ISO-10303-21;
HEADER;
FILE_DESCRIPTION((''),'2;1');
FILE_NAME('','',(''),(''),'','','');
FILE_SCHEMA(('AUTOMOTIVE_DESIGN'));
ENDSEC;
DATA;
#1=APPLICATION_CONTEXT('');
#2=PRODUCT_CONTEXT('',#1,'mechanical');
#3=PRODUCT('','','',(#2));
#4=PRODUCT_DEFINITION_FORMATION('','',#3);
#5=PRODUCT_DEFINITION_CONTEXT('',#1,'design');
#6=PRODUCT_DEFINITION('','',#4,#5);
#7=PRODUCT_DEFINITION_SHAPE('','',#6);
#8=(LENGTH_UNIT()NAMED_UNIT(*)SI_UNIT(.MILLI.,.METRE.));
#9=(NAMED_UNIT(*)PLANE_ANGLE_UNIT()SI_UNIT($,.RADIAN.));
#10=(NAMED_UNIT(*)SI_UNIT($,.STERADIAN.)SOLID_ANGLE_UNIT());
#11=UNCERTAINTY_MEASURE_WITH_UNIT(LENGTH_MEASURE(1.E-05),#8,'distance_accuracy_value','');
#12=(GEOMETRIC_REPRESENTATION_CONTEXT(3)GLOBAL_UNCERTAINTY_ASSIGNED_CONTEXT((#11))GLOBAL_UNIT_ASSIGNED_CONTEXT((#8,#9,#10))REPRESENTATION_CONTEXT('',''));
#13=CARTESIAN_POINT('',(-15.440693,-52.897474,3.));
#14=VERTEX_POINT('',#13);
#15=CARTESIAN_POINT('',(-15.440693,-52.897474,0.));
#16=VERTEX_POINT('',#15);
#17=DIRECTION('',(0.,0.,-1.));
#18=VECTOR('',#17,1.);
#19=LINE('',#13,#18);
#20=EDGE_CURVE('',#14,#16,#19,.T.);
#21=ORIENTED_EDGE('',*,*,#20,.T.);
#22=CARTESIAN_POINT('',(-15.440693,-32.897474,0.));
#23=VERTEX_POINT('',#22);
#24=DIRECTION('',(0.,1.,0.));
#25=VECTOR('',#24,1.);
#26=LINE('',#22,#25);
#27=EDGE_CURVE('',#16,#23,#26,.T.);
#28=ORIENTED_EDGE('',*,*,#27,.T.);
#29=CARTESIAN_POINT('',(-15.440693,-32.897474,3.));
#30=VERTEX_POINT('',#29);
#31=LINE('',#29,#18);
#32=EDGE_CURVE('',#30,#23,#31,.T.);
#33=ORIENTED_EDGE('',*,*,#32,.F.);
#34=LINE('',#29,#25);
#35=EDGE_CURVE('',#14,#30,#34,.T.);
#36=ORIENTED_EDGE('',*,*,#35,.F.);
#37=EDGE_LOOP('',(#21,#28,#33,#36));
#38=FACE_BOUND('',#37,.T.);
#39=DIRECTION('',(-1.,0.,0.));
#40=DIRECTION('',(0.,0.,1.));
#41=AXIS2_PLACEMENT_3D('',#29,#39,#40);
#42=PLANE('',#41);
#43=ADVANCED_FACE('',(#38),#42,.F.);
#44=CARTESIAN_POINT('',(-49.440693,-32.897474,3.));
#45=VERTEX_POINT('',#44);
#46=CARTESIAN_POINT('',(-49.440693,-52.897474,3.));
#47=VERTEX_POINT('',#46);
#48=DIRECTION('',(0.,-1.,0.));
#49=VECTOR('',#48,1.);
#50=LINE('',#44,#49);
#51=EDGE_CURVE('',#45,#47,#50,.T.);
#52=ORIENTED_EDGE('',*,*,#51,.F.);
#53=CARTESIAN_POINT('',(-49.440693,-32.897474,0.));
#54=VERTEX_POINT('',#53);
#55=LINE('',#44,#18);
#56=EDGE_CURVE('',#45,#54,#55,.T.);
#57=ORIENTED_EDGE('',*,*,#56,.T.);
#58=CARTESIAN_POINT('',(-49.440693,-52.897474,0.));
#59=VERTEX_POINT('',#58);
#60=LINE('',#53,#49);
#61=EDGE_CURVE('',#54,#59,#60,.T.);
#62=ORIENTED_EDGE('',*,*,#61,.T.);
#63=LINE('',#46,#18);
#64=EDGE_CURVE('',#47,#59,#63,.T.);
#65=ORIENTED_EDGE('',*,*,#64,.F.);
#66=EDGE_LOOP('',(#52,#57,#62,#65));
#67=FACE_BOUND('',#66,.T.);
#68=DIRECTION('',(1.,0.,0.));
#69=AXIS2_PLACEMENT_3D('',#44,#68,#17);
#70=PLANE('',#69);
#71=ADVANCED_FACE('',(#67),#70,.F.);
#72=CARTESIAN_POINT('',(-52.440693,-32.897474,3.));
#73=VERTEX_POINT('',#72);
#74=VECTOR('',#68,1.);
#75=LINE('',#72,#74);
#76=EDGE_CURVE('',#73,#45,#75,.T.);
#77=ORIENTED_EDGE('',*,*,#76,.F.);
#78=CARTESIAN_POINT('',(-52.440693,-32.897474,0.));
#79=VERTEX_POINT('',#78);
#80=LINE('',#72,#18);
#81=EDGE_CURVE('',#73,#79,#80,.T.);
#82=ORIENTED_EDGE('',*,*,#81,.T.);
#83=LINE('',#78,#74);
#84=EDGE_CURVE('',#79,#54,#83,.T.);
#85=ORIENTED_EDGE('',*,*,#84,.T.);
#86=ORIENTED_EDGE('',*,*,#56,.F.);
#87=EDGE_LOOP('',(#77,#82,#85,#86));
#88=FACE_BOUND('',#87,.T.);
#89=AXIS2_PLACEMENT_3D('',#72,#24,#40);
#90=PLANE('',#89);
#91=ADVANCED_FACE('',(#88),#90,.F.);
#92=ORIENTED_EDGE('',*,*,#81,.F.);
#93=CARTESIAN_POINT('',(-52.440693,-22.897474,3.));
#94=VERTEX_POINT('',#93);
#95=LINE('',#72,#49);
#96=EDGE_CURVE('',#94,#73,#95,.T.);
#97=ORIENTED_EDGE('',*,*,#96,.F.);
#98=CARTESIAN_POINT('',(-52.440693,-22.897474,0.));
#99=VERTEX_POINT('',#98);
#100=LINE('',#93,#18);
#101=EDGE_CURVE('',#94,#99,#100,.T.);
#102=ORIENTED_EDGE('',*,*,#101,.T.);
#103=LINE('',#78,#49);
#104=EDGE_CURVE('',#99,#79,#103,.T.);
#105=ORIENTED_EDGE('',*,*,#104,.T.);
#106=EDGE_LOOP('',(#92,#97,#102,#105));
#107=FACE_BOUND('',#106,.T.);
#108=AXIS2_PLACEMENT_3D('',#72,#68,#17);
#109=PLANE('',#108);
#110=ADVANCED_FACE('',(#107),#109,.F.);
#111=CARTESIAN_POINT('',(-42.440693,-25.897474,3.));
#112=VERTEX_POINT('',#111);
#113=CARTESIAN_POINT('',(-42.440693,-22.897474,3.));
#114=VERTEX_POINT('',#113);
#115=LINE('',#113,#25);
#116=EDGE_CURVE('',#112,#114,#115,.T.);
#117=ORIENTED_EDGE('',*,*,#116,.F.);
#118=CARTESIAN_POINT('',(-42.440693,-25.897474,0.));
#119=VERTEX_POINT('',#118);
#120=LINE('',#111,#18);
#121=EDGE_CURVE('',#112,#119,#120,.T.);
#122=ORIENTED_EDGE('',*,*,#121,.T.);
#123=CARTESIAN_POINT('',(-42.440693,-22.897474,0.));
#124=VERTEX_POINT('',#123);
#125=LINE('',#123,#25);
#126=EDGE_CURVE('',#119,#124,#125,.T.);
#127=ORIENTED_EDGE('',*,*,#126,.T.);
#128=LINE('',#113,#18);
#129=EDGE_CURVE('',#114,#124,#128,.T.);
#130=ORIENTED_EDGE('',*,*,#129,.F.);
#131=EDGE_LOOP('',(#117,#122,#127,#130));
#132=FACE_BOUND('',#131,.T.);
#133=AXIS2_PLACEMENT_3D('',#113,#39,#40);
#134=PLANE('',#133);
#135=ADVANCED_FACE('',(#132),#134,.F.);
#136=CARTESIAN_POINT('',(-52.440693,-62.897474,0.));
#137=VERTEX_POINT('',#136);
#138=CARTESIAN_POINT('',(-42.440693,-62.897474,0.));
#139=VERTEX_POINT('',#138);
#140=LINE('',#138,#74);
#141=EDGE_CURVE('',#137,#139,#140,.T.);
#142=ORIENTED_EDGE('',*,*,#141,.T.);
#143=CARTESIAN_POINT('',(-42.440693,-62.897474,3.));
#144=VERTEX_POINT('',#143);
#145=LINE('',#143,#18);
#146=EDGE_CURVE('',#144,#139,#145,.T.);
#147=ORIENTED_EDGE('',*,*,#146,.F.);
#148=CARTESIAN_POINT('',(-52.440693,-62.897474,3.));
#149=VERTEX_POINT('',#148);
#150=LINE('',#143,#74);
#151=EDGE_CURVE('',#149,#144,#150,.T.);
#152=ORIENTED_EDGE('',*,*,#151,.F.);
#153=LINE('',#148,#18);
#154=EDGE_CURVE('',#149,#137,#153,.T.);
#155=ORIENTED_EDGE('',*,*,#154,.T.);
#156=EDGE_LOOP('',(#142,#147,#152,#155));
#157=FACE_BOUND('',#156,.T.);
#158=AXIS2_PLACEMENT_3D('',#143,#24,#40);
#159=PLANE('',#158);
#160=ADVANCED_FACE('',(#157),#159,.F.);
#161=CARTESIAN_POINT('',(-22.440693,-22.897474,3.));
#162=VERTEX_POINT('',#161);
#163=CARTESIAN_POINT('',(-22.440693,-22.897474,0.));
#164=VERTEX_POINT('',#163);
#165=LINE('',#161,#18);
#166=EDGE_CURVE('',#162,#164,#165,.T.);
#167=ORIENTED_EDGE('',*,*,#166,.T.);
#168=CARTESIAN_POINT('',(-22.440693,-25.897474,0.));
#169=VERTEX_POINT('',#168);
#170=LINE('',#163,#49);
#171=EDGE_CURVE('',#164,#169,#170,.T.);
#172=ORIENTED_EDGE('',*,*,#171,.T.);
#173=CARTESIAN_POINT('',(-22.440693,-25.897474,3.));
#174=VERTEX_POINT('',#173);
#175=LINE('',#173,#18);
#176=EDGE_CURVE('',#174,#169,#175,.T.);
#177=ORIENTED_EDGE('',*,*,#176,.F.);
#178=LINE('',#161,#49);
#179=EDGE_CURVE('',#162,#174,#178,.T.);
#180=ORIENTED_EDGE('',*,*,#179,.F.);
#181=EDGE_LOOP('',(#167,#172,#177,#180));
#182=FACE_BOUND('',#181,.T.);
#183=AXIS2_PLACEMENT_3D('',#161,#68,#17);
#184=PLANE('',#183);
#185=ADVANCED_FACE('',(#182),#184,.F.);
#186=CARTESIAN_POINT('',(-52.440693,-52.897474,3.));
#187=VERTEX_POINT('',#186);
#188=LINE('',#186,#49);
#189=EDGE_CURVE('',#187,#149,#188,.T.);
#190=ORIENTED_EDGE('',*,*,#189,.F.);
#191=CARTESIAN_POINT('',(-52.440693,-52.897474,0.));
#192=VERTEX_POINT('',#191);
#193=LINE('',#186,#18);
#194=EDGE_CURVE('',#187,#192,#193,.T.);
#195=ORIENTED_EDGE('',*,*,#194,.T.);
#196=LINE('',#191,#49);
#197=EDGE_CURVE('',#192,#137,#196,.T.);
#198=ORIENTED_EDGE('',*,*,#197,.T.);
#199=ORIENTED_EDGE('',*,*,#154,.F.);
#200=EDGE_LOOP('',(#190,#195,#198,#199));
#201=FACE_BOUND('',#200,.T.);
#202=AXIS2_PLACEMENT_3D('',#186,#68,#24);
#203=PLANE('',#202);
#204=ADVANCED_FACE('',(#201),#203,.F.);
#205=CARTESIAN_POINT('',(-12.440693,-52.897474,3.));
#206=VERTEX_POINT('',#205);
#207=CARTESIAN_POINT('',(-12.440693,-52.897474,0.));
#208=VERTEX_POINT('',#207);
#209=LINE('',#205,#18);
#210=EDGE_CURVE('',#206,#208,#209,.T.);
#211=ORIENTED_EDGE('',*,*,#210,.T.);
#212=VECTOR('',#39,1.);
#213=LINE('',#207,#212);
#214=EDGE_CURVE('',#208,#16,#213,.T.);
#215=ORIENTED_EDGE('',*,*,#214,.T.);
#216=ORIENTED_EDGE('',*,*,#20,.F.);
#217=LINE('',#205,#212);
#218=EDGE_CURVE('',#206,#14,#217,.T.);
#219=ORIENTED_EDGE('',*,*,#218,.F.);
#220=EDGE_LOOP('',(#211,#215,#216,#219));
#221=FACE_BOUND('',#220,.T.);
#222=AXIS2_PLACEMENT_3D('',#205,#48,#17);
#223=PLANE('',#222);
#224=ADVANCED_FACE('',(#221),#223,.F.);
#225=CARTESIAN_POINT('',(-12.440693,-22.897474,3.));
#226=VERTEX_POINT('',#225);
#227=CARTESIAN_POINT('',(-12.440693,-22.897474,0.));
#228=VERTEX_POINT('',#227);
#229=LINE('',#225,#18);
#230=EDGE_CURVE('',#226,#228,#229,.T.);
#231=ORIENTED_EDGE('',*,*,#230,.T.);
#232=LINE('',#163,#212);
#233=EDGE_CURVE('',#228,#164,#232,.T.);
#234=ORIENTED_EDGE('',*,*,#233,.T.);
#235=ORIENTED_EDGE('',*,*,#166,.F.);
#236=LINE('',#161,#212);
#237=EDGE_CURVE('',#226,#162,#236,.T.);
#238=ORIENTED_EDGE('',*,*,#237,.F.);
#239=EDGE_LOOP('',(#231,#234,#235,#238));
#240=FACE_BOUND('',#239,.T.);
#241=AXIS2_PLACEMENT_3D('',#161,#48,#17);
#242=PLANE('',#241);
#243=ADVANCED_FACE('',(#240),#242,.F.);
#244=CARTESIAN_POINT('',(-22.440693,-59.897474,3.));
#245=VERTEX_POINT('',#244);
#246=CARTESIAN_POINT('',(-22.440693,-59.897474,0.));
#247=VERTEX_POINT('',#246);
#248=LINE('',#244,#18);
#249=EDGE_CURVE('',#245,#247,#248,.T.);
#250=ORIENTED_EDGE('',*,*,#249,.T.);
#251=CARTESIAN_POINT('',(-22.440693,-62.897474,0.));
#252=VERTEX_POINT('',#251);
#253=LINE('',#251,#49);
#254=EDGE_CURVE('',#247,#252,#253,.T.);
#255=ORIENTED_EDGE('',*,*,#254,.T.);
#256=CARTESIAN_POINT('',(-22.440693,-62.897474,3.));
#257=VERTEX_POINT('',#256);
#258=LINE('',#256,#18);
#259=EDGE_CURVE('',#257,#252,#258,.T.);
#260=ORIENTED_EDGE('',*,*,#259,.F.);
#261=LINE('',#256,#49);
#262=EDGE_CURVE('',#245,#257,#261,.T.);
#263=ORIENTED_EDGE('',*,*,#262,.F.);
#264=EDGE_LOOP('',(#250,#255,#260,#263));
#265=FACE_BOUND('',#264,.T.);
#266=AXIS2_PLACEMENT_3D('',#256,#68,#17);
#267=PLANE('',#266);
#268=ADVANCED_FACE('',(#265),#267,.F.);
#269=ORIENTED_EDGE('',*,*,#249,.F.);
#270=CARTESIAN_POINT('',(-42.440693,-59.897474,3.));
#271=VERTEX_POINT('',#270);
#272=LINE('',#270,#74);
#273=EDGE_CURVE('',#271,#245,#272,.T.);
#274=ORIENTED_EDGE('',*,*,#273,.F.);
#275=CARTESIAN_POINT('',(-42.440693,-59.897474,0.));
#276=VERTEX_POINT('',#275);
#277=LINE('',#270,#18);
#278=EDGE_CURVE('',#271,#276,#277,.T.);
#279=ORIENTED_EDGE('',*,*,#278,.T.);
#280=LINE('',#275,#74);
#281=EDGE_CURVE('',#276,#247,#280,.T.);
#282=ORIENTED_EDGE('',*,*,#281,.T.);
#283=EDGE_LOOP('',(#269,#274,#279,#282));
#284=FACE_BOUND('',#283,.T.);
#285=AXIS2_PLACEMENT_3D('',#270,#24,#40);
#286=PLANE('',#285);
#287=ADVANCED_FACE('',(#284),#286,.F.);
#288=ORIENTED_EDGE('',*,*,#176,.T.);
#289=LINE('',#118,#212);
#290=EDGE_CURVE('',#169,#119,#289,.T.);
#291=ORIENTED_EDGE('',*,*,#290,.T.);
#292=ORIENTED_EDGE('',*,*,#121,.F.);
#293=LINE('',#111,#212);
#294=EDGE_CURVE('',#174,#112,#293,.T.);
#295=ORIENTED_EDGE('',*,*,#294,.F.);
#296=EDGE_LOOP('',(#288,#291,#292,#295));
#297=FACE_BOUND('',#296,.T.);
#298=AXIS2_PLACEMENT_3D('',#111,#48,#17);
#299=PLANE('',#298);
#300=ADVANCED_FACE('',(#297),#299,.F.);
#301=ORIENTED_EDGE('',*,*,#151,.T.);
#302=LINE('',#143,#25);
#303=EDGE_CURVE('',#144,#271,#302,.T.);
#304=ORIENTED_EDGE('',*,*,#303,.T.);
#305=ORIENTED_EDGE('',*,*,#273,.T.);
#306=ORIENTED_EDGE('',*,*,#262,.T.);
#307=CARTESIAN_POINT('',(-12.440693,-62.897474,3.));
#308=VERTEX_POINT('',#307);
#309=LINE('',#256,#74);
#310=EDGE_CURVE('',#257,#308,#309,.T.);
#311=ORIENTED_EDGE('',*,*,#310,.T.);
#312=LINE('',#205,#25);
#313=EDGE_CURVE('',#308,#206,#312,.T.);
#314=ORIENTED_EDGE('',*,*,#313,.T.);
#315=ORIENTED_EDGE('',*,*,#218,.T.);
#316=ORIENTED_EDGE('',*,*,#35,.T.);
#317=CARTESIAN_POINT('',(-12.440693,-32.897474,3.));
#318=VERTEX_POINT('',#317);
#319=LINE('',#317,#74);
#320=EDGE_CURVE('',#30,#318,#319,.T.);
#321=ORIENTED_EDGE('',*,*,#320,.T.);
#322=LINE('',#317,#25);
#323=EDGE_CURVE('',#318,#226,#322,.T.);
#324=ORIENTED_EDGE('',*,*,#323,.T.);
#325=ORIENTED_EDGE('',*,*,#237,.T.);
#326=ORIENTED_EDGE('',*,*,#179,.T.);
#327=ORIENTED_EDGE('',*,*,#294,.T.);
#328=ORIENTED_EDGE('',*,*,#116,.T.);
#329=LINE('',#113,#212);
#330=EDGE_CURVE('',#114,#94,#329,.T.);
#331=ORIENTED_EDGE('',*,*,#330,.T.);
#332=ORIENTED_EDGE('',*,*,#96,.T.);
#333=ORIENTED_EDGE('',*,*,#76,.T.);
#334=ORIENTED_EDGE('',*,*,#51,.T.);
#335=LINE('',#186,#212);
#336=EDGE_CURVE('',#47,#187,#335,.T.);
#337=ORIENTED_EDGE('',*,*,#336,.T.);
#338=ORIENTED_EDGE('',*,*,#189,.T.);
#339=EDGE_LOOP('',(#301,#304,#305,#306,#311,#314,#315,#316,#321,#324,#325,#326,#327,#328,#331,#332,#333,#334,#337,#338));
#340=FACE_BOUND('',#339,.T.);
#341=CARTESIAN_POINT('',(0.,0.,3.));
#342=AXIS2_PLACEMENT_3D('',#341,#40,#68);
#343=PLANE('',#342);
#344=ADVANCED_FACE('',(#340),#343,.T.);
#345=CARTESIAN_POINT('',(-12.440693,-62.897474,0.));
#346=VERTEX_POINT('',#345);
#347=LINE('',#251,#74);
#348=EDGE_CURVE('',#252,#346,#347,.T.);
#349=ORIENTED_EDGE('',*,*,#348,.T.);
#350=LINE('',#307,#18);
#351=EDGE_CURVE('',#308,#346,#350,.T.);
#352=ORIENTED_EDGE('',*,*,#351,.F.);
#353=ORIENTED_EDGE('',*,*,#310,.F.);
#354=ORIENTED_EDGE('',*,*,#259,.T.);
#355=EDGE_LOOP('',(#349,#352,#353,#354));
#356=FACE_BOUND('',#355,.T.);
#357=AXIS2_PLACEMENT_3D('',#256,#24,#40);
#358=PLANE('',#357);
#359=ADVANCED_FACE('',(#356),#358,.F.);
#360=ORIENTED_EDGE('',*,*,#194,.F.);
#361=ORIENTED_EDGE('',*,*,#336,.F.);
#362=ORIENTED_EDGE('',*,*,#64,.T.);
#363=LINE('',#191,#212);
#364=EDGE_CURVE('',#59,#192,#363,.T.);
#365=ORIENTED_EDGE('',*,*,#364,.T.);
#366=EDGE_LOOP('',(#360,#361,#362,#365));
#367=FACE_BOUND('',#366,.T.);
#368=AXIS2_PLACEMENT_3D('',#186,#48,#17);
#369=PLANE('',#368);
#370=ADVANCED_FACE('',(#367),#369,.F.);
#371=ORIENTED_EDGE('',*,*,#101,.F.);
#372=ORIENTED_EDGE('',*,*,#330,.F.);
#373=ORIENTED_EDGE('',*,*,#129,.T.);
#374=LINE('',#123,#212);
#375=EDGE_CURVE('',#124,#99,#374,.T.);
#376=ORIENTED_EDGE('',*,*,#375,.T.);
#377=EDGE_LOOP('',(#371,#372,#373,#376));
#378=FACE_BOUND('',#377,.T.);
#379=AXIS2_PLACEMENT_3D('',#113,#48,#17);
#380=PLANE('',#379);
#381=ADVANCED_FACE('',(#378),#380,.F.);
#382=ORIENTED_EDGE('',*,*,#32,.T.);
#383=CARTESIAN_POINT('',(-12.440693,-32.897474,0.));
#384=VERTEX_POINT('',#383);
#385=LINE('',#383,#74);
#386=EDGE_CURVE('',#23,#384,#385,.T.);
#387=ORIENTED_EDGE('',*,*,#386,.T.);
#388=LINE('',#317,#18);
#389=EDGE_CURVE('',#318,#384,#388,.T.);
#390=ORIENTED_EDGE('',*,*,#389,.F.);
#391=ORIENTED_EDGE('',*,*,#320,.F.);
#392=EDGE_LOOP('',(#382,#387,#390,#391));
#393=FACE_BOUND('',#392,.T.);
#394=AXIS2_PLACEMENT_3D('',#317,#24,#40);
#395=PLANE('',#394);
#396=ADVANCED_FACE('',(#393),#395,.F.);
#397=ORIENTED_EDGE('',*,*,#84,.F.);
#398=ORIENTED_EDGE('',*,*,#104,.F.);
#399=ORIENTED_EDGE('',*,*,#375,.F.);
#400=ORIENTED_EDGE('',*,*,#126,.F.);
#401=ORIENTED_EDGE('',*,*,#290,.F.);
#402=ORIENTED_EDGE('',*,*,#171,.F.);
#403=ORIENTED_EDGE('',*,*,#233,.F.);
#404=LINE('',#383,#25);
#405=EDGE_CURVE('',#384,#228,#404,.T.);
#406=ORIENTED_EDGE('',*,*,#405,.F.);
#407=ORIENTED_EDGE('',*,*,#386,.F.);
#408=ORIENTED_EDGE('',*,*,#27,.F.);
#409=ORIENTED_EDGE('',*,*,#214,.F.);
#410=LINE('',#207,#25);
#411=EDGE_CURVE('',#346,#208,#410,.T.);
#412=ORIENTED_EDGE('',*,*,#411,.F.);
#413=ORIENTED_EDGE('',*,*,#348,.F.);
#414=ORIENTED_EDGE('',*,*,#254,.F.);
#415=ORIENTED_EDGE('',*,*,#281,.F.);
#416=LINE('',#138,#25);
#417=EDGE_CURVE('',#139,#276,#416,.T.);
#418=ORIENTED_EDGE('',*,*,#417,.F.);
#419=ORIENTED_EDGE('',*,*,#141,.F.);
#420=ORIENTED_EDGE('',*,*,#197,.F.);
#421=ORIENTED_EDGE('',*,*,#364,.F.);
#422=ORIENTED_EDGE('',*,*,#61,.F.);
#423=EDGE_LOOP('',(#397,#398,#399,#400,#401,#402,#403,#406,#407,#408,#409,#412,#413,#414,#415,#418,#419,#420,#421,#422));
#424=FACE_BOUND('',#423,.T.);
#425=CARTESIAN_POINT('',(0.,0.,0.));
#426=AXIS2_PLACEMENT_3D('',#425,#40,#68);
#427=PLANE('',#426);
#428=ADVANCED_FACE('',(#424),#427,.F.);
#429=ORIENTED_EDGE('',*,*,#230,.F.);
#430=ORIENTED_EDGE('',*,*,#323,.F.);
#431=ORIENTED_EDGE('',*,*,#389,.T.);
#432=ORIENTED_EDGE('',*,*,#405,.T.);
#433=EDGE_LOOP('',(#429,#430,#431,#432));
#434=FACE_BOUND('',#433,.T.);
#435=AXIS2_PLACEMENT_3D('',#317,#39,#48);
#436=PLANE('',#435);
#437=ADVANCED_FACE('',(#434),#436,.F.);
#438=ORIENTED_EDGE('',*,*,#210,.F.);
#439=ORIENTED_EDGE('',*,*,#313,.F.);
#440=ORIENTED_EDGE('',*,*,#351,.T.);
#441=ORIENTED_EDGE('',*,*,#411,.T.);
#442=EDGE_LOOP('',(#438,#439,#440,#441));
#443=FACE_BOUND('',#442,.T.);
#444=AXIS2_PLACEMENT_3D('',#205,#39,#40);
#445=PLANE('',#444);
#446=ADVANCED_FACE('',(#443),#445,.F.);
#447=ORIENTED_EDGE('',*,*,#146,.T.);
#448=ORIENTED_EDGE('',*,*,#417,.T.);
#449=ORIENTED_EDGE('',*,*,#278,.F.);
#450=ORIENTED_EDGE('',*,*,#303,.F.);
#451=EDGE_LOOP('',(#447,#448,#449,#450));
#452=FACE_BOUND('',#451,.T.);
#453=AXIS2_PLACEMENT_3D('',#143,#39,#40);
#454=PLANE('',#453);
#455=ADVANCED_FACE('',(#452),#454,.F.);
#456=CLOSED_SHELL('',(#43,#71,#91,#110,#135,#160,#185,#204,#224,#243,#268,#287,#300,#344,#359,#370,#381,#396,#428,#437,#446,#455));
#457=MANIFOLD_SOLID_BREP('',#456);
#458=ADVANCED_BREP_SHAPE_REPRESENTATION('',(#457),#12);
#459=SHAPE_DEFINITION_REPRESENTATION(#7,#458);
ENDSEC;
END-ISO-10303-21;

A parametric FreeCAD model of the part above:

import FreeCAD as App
import Part
import Sketcher
from FreeCAD import Vector
Q = App.Units.Quantity


def add_polygon(sketch, points):
    """Adds a closed chain of lines whose ends are joined by coincident constraints."""
    first, n = sketch.GeometryCount, len(points)
    for a, b in zip(points, points[1:] + points[:1]):
        sketch.addGeometry(Part.LineSegment(App.Vector(*a, 0), App.Vector(*b, 0)), False)
    for i in range(n):
        sketch.addConstraint(Sketcher.Constraint("Coincident", first + i, 2, first + (i + 1) % n, 1))

doc = App.newDocument("Part")
body = doc.addObject("PartDesign::Body", "Body")

sketch1 = body.newObject("Sketcher::SketchObject", "Sketch")
sketch1.AttachmentSupport = (doc.getObject("XY_Plane"), [""])
sketch1.MapMode = "FlatFace"
add_polygon(sketch1, [(-42.4, -25.9), (-42.4, -22.9), (-52.4, -22.9), (-52.4, -32.9), (-49.4, -32.9), (-49.4, -52.9), (-52.4, -52.9), (-52.4, -62.9), (-42.4, -62.9), (-42.4, -59.9), (-22.4, -59.9), (-22.4, -62.9), (-12.4, -62.9), (-12.4, -52.9), (-15.4, -52.9), (-15.4, -32.9), (-12.4, -32.9), (-12.4, -22.9), (-22.4, -22.9), (-22.4, -25.9)])
sketch1.addConstraint([
    Sketcher.Constraint("Vertical", 0),
    Sketcher.Constraint("Horizontal", 1),
    Sketcher.Constraint("Vertical", 2),
    Sketcher.Constraint("Horizontal", 3),
    Sketcher.Constraint("Vertical", 4),
    Sketcher.Constraint("Horizontal", 5),
    Sketcher.Constraint("Vertical", 6),
    Sketcher.Constraint("Horizontal", 7),
    Sketcher.Constraint("Vertical", 8),
    Sketcher.Constraint("Horizontal", 9),
    Sketcher.Constraint("Vertical", 10),
    Sketcher.Constraint("Horizontal", 11),
    Sketcher.Constraint("Vertical", 12),
    Sketcher.Constraint("Horizontal", 13),
    Sketcher.Constraint("Vertical", 14),
    Sketcher.Constraint("Horizontal", 15),
    Sketcher.Constraint("Vertical", 16),
    Sketcher.Constraint("Horizontal", 17),
    Sketcher.Constraint("Vertical", 18),
    Sketcher.Constraint("Horizontal", 19),
    Sketcher.Constraint("Horizontal", 7, 2, 10, 2),
    Sketcher.Constraint("Horizontal", 5, 2, 12, 2),
    Sketcher.Constraint("Horizontal", 3, 2, 14, 2),
    Sketcher.Constraint("Horizontal", 1, 2, 16, 2),
    Sketcher.Constraint("Vertical", 2, 2, 5, 2),
    Sketcher.Constraint("Vertical", 0, 2, 7, 2),
    Sketcher.Constraint("Vertical", 12, 2, 15, 2),
    Sketcher.Constraint("Vertical", 10, 2, 17, 2),
    Sketcher.Constraint("Equal", 7, 11),
    Sketcher.Constraint("Equal", 5, 13),
    Sketcher.Constraint("Equal", 15, 0),
    Sketcher.Constraint("Equal", 17, 2),
    Sketcher.Constraint("Equal", 19, 4),
    Sketcher.Constraint("Equal", 2, 6),
    Sketcher.Constraint("Equal", 0, 8),
    Sketcher.Constraint("DistanceX", 1, 2, 1, 1, Q("10 mm")),
    Sketcher.Constraint("DistanceX", 3, 1, 3, 2, Q("3 mm")),
    Sketcher.Constraint("DistanceX", 9, 1, 9, 2, Q("20 mm")),
    Sketcher.Constraint("DistanceX", 0, 2, -1, 1, Q("42.440693 mm")),
    Sketcher.Constraint("DistanceY", 0, 2, -1, 1, Q("22.897474 mm")),
])
pad1 = body.newObject("PartDesign::Pad", "Pad")
pad1.Profile = sketch1
pad1.Length = 3

doc.recompute()
